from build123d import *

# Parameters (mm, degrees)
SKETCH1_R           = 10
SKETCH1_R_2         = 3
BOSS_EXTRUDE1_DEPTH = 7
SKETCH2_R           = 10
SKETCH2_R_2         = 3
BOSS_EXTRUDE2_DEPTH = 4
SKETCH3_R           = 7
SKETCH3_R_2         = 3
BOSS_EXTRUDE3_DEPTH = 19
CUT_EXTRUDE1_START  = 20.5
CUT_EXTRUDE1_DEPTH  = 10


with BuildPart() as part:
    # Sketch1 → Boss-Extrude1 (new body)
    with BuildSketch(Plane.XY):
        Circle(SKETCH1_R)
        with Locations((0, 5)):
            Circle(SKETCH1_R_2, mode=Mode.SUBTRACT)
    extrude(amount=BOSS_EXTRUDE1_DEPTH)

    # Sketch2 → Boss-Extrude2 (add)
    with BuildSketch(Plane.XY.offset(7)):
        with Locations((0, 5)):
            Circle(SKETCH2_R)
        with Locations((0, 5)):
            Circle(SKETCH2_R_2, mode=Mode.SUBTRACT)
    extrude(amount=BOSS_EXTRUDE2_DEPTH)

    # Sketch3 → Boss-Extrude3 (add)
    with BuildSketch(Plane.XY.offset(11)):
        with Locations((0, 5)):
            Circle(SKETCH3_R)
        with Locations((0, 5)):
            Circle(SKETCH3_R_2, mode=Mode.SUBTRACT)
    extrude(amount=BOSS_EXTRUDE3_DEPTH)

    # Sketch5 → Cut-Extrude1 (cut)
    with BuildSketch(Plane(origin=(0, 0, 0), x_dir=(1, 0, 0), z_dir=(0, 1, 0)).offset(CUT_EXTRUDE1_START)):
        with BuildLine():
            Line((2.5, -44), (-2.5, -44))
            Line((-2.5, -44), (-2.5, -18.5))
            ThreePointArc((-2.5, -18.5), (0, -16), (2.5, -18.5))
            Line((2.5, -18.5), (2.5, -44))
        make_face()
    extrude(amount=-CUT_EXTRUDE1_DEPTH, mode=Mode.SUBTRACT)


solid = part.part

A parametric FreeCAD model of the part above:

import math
import FreeCAD as App
import Part
import Sketcher

V = App.Vector
Q = App.Units.Quantity

doc = App.newDocument("Part")
body = doc.addObject("PartDesign::Body", "Body")

# Sketch on XY plane
sketch1 = doc.addObject("Sketcher::SketchObject", "Sketch")
body.addObject(sketch1)
sketch1.AttachmentSupport = (doc.XY_Plane, [""])
sketch1.MapMode = "FlatFace"
sketch1.addGeometry([
    Part.Circle(V(0, 0, 0), V(0, 0, 1), 10),
    Part.Circle(V(0, 5, 0), V(0, 0, 1), 3),
], False)
sketch1.addConstraint([
    Sketcher.Constraint("Coincident", 0, 3, -1, 1),
    Sketcher.Constraint("PointOnObject", 1, 3, -2),
    Sketcher.Constraint("Diameter", 0, Q("20 mm")),
    Sketcher.Constraint("Diameter", 1, Q("6 mm")),
    Sketcher.Constraint("DistanceY", -1, 1, 1, 3, Q("5 mm")),
])
pad1 = doc.addObject("PartDesign::Pad", "Pad")
body.addObject(pad1)
pad1.Profile = sketch1
pad1.Length = 7

# Sketch on XY plane
sketch2 = doc.addObject("Sketcher::SketchObject", "Sketch001")
body.addObject(sketch2)
sketch2.AttachmentSupport = (doc.XY_Plane, [""])
sketch2.MapMode = "FlatFace"
sketch2.AttachmentOffset = App.Placement(V(0, 0, 7), App.Rotation())
sketch2.addGeometry([
    Part.Circle(V(0, 5, 0), V(0, 0, 1), 10),
    Part.Circle(V(0, 5, 0), V(0, 0, 1), 3),
], False)
sketch2.addConstraint([
    Sketcher.Constraint("Coincident", 1, 3, 0, 3),
    Sketcher.Constraint("PointOnObject", 0, 3, -2),
    Sketcher.Constraint("Diameter", 0, Q("20 mm")),
    Sketcher.Constraint("Diameter", 1, Q("6 mm")),
    Sketcher.Constraint("DistanceY", -1, 1, 0, 3, Q("5 mm")),
])
pad2 = doc.addObject("PartDesign::Pad", "Pad001")
body.addObject(pad2)
pad2.Profile = sketch2
pad2.Length = 4

# Sketch on XY plane
sketch3 = doc.addObject("Sketcher::SketchObject", "Sketch002")
body.addObject(sketch3)
sketch3.AttachmentSupport = (doc.XY_Plane, [""])
sketch3.MapMode = "FlatFace"
sketch3.AttachmentOffset = App.Placement(V(0, 0, 11), App.Rotation())
sketch3.addGeometry([
    Part.Circle(V(0, 5, 0), V(0, 0, 1), 7),
    Part.Circle(V(0, 5, 0), V(0, 0, 1), 3),
], False)
sketch3.addConstraint([
    Sketcher.Constraint("Coincident", 1, 3, 0, 3),
    Sketcher.Constraint("PointOnObject", 0, 3, -2),
    Sketcher.Constraint("Diameter", 0, Q("14 mm")),
    Sketcher.Constraint("Diameter", 1, Q("6 mm")),
    Sketcher.Constraint("DistanceY", -1, 1, 0, 3, Q("5 mm")),
])
pad3 = doc.addObject("PartDesign::Pad", "Pad002")
body.addObject(pad3)
pad3.Profile = sketch3
pad3.Length = 19

# Sketch on XZ plane
sketch4 = doc.addObject("Sketcher::SketchObject", "Sketch003")
body.addObject(sketch4)
sketch4.AttachmentSupport = (doc.XZ_Plane, [""])
sketch4.MapMode = "FlatFace"
sketch4.AttachmentOffset = App.Placement(V(0, 0, -20.5), App.Rotation())
sketch4.addGeometry([
    Part.LineSegment(V(-2.5, 44, 0), V(2.5, 44, 0)),
    Part.LineSegment(V(2.5, 44, 0), V(2.5, 18.5, 0)),
    Part.ArcOfCircle(Part.Circle(V(0, 18.5, 0), V(0, 0, 1), 2.5), math.radians(180), math.radians(360)),
    Part.LineSegment(V(-2.5, 18.5, 0), V(-2.5, 44, 0)),
], False)
sketch4.addConstraint([
    Sketcher.Constraint("Coincident", 0, 2, 1, 1),
    Sketcher.Constraint("Tangent", 1, 2, 2, 2),
    Sketcher.Constraint("Tangent", 2, 1, 3, 1),
    Sketcher.Constraint("Coincident", 3, 2, 0, 1),
    Sketcher.Constraint("Horizontal", 0),
    Sketcher.Constraint("Vertical", 1),
    Sketcher.Constraint("Vertical", 3),
    Sketcher.Constraint("PointOnObject", 2, 3, -2),
    Sketcher.Constraint("Radius", 2, Q("2.5 mm")),
    Sketcher.Constraint("DistanceY", 1, 2, 1, 1, Q("25.5 mm")),
    Sketcher.Constraint("DistanceY", -1, 1, 0, 2, Q("44 mm")),
])
pocket1 = doc.addObject("PartDesign::Pocket", "Pocket")
body.addObject(pocket1)
pocket1.Profile = sketch4
pocket1.Length = 10
pocket1.Reversed = True

doc.recompute()
